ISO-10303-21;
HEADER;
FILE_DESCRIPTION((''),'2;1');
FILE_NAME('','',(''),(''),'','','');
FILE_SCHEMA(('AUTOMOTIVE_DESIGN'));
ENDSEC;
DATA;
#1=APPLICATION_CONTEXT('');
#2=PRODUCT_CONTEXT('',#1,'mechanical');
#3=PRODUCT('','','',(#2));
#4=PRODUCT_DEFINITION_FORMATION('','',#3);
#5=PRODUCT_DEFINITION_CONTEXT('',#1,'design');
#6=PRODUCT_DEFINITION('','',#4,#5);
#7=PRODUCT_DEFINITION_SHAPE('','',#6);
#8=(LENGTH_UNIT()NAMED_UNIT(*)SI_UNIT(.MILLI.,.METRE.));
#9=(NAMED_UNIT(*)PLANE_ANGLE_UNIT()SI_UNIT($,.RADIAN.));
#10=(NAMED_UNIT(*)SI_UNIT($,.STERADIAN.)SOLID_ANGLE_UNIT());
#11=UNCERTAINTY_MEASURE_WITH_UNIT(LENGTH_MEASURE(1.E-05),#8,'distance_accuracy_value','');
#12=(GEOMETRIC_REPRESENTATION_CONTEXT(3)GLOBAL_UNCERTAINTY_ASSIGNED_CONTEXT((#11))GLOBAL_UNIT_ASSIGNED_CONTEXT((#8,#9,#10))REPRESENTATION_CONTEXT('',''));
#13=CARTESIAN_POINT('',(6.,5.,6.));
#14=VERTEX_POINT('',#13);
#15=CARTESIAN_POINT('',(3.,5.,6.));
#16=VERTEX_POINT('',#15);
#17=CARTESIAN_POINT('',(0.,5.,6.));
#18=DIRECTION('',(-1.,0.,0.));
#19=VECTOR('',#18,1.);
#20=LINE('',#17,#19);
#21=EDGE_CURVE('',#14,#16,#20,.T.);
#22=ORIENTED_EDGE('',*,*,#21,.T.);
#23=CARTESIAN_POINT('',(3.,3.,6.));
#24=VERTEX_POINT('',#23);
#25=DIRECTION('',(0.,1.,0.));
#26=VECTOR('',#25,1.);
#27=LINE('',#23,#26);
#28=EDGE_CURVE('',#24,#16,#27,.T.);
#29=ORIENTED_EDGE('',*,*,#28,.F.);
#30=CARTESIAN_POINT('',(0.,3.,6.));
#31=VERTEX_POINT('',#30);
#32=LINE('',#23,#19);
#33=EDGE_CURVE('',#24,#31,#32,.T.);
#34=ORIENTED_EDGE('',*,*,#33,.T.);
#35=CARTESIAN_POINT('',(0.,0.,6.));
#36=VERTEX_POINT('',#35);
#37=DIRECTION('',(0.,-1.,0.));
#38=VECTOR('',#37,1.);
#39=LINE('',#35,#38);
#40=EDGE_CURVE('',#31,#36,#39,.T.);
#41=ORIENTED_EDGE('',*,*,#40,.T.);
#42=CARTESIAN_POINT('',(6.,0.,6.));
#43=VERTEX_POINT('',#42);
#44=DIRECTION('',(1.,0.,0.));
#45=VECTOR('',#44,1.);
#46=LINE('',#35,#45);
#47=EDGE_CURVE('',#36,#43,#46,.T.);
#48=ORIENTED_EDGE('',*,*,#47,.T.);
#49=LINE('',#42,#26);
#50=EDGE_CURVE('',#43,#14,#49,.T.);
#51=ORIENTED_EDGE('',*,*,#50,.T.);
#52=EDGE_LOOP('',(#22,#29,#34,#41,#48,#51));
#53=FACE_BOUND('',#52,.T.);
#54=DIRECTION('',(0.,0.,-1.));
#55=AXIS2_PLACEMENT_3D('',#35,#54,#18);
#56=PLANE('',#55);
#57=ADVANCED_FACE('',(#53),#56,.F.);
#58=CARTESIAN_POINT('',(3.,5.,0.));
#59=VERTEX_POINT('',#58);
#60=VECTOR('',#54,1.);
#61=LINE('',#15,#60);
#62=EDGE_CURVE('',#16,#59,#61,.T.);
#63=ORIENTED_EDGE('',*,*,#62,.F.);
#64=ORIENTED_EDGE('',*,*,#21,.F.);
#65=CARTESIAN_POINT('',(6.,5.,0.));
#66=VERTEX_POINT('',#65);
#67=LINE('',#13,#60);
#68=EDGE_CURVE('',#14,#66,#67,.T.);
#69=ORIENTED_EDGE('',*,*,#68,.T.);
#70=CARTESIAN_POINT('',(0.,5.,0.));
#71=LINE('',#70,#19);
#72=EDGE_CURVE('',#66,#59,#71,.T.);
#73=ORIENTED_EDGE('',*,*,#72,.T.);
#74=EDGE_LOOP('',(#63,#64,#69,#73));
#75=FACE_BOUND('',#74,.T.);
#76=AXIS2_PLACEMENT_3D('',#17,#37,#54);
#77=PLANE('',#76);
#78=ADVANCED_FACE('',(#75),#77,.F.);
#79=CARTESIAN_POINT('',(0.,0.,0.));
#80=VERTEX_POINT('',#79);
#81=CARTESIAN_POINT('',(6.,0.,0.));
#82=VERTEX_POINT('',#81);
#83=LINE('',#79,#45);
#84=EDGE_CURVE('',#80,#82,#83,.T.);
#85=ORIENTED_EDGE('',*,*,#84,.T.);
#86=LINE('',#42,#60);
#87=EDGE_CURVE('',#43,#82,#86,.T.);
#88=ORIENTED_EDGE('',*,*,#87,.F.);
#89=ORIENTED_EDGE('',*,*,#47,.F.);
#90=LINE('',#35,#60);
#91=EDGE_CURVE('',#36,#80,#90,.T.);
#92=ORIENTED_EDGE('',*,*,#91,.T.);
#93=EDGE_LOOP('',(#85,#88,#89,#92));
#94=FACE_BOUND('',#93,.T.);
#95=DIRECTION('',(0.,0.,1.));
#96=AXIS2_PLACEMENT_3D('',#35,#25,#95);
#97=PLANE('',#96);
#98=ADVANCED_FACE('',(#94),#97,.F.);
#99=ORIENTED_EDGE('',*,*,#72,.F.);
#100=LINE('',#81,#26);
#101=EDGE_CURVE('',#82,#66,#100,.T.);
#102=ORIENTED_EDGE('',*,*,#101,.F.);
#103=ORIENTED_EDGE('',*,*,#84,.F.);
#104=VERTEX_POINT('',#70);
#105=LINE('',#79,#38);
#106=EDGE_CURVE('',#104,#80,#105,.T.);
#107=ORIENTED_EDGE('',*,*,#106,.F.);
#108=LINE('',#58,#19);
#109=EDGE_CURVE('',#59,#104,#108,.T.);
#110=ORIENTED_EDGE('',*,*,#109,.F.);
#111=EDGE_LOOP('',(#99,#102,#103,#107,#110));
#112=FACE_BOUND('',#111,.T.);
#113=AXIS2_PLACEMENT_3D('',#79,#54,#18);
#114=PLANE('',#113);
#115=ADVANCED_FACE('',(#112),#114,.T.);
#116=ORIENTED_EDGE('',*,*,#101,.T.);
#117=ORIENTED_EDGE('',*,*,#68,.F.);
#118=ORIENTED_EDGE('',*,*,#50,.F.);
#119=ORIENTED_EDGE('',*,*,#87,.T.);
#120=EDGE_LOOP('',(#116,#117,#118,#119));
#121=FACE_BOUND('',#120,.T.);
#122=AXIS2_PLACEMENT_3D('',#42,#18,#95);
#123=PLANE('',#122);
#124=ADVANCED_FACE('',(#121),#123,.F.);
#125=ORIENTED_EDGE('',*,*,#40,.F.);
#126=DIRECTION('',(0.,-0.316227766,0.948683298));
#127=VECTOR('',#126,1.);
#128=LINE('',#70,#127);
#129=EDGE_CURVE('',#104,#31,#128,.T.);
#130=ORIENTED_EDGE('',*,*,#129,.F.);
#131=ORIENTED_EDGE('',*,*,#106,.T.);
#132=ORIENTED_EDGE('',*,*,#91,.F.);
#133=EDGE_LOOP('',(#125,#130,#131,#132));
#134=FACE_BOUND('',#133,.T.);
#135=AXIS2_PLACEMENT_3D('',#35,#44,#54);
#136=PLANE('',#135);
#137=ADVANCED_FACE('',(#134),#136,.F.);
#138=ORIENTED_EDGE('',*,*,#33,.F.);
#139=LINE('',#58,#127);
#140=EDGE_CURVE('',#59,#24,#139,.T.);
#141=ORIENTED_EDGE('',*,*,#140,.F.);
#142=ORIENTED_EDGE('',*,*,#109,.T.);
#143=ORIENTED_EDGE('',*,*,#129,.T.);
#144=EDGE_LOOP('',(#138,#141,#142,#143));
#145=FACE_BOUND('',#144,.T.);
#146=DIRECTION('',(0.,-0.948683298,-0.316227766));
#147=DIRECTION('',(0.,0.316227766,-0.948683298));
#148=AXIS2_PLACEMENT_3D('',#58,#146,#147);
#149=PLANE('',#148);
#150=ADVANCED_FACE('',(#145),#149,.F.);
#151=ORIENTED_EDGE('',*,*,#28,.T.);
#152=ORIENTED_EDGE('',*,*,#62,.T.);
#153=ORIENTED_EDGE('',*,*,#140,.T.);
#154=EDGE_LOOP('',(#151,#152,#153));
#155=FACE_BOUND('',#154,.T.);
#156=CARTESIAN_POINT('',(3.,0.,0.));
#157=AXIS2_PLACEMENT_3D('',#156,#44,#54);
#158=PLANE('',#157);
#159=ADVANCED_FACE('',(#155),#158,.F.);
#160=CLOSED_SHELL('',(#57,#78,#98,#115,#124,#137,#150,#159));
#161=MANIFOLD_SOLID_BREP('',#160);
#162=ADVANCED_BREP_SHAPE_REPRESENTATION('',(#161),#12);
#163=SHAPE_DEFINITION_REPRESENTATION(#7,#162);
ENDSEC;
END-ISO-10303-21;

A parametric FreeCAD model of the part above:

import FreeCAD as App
import Part
import Sketcher

V = App.Vector
Q = App.Units.Quantity

doc = App.newDocument("Part")
body = doc.addObject("PartDesign::Body", "Body")

# Sketch on XY plane
sketch1 = body.newObject("Sketcher::SketchObject", "Sketch")
sketch1.AttachmentSupport = (doc.getObject("XY_Plane"), [""])
sketch1.MapMode = "FlatFace"
sketch1.addGeometry([
    Part.LineSegment(V(0, 5, 0), V(0, 0, 0)),
    Part.LineSegment(V(0, 0, 0), V(6, 0, 0)),
    Part.LineSegment(V(6, 0, 0), V(6, 5, 0)),
    Part.LineSegment(V(6, 5, 0), V(0, 5, 0)),
], False)
sketch1.addConstraint([
    Sketcher.Constraint("Coincident", 0, 2, 1, 1),
    Sketcher.Constraint("Coincident", 1, 2, 2, 1),
    Sketcher.Constraint("Coincident", 2, 2, 3, 1),
    Sketcher.Constraint("Coincident", 3, 2, 0, 1),
    Sketcher.Constraint("Vertical", 0),
    Sketcher.Constraint("Horizontal", 1),
    Sketcher.Constraint("Vertical", 2),
    Sketcher.Constraint("Horizontal", 3),
    Sketcher.Constraint("Coincident", 0, 2, -1, 1),
    Sketcher.Constraint("DistanceX", 1, 1, 1, 2, Q("6 mm")),
    Sketcher.Constraint("DistanceY", 0, 2, 0, 1, Q("5 mm")),
])
pad1 = body.newObject("PartDesign::Pad", "Pad")
pad1.Profile = sketch1
pad1.Length = 6

# Sketch on YZ plane
sketch2 = body.newObject("Sketcher::SketchObject", "Sketch001")
sketch2.AttachmentSupport = (doc.getObject("YZ_Plane"), [""])
sketch2.MapMode = "FlatFace"
sketch2.addGeometry([
    Part.LineSegment(V(5, 0, 0), V(3, 6, 0)),
    Part.LineSegment(V(3, 6, 0), V(5, 6, 0)),
    Part.LineSegment(V(5, 6, 0), V(5, 0, 0)),
], False)
sketch2.addConstraint([
    Sketcher.Constraint("Coincident", 0, 2, 1, 1),
    Sketcher.Constraint("Coincident", 1, 2, 2, 1),
    Sketcher.Constraint("Coincident", 2, 2, 0, 1),
    Sketcher.Constraint("Horizontal", 1),
    Sketcher.Constraint("Vertical", 2),
    Sketcher.Constraint("PointOnObject", 2, 2, -1),
    Sketcher.Constraint("DistanceX", 1, 1, 1, 2, Q("2 mm")),
    Sketcher.Constraint("DistanceY", 2, 2, 2, 1, Q("6 mm")),
    Sketcher.Constraint("DistanceX", -1, 1, 0, 2, Q("3 mm")),
])
pocket1 = body.newObject("PartDesign::Pocket", "Pocket")
pocket1.Profile = sketch2
pocket1.Length = 3
pocket1.Reversed = True

doc.recompute()
